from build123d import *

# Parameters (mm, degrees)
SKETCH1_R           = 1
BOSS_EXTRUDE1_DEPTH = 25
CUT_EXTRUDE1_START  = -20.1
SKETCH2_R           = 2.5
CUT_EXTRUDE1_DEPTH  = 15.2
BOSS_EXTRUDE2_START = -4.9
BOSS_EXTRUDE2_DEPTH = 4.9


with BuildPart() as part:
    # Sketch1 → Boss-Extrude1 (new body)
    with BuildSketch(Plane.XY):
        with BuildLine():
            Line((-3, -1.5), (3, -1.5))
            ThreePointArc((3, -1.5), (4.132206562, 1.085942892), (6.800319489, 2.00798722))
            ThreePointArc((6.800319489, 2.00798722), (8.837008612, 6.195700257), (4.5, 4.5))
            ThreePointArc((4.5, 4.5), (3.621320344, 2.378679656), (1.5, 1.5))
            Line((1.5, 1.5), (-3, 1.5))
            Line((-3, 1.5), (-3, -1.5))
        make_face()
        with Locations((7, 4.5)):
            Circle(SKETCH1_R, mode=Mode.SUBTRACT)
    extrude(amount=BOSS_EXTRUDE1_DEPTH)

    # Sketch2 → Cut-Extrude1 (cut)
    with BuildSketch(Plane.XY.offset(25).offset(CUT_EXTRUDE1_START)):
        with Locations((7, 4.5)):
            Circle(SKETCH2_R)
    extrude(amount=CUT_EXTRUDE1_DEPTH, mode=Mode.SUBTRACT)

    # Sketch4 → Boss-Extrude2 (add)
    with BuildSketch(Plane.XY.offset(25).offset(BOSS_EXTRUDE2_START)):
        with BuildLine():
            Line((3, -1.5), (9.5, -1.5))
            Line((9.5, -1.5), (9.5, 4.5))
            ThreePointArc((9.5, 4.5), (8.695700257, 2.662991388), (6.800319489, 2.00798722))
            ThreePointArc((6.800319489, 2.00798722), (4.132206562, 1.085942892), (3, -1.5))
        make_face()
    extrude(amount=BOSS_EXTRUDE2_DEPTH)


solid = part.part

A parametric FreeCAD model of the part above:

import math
import FreeCAD as App
import Part
import Sketcher
from FreeCAD import Vector
Q = App.Units.Quantity

doc = App.newDocument("Part")
body = doc.addObject("PartDesign::Body", "Body")

sketch1 = body.newObject("Sketcher::SketchObject", "Sketch")
sketch1.AttachmentSupport = (doc.getObject("XY_Plane"), [""])
sketch1.MapMode = "FlatFace"
sketch1.addGeometry([
    Part.LineSegment(Vector(-3, -1.5, 0), Vector(3, -1.5, 0)),
    Part.ArcOfCircle(Part.Circle(Vector(6.5, -1.5, 0), Vector(0, 0, 1), 3.5), math.radians(85), math.radians(180)),
    Part.ArcOfCircle(Part.Circle(Vector(7, 4.5, 0), Vector(0, 0, 1), 2.5), math.radians(-95), math.radians(180)),
    Part.ArcOfCircle(Part.Circle(Vector(1.5, 4.5, 0), Vector(0, 0, 1), 3), math.radians(-90), math.radians(0)),
    Part.LineSegment(Vector(1.5, 1.5, 0), Vector(-3, 1.5, 0)),
    Part.LineSegment(Vector(-3, 1.5, 0), Vector(-3, -1.5, 0)),
    Part.Circle(Vector(7, 4.5, 0), Vector(0, 0, 1), 1),
], False)
sketch1.addConstraint([
    Sketcher.Constraint("Coincident", 0, 2, 1, 2),
    Sketcher.Constraint("Tangent", 1, 1, 2, 1),
    Sketcher.Constraint("Tangent", 2, 2, 3, 2),
    Sketcher.Constraint("Tangent", 3, 1, 4, 1),
    Sketcher.Constraint("Coincident", 4, 2, 5, 1),
    Sketcher.Constraint("Coincident", 5, 2, 0, 1),
    Sketcher.Constraint("Horizontal", 0),
    Sketcher.Constraint("Horizontal", 4),
    Sketcher.Constraint("Vertical", 5),
    Sketcher.Constraint("Coincident", 6, 3, 2, 3),
    Sketcher.Constraint("Symmetric", 0, 2, 4, 2, -1, 1),
    Sketcher.Constraint("Horizontal", 2, 3, 3, 3),
    Sketcher.Constraint("Horizontal", 1, 3, 0, 2),
    Sketcher.Constraint("Diameter", 6, Q("2 mm")),
    Sketcher.Constraint("Radius", 3, Q("3 mm")),
    Sketcher.Constraint("Radius", 2, Q("2.5 mm")),
    Sketcher.Constraint("DistanceX", 0, 1, 0, 2, Q("6 mm")),
    Sketcher.Constraint("DistanceY", 5, 2, 5, 1, Q("3 mm")),
    Sketcher.Constraint("DistanceX", 4, 2, 4, 1, Q("4.5 mm")),
])
pad1 = body.newObject("PartDesign::Pad", "Pad")
pad1.Profile = sketch1
pad1.Length = 25

sketch2 = body.newObject("Sketcher::SketchObject", "Sketch001")
sketch2.AttachmentSupport = (doc.getObject("XY_Plane"), [""])
sketch2.MapMode = "FlatFace"
sketch2.AttachmentOffset = App.Placement(Vector(0, 0, 4.9), App.Rotation())
sketch2.addGeometry(Part.Circle(Vector(7, 4.5, 0), Vector(0, 0, 1), 2.5), False)
sketch2.addConstraint([
    Sketcher.Constraint("Diameter", 0, Q("5 mm")),
    Sketcher.Constraint("DistanceX", -1, 1, 0, 3, Q("7 mm")),
    Sketcher.Constraint("DistanceY", -1, 1, 0, 3, Q("4.5 mm")),
])
pocket1 = body.newObject("PartDesign::Pocket", "Pocket")
pocket1.Profile = sketch2
pocket1.Length = 15.2
pocket1.Reversed = True

sketch3 = body.newObject("Sketcher::SketchObject", "Sketch002")
sketch3.AttachmentSupport = (doc.getObject("XY_Plane"), [""])
sketch3.MapMode = "FlatFace"
sketch3.AttachmentOffset = App.Placement(Vector(0, 0, 20.1), App.Rotation())
sketch3.addGeometry([
    Part.LineSegment(Vector(3, -1.5, 0), Vector(9.5, -1.5, 0)),
    Part.LineSegment(Vector(9.5, -1.5, 0), Vector(9.5, 4.5, 0)),
    Part.ArcOfCircle(Part.Circle(Vector(7, 4.5, 0), Vector(0, 0, 1), 2.5), math.radians(-95), math.radians(0)),
    Part.ArcOfCircle(Part.Circle(Vector(6.5, -1.5, 0), Vector(0, 0, 1), 3.5), math.radians(85), math.radians(180)),
], False)
sketch3.addConstraint([
    Sketcher.Constraint("Coincident", 0, 2, 1, 1),
    Sketcher.Constraint("Tangent", 1, 2, 2, 2),
    Sketcher.Constraint("Tangent", 2, 1, 3, 1),
    Sketcher.Constraint("Coincident", 3, 2, 0, 1),
    Sketcher.Constraint("Horizontal", 0),
    Sketcher.Constraint("Vertical", 1),
    Sketcher.Constraint("Horizontal", 3, 3, 0, 2),
    Sketcher.Constraint("Radius", 2, Q("2.5 mm")),
    Sketcher.Constraint("DistanceY", 1, 1, 1, 2, Q("6 mm")),
    Sketcher.Constraint("DistanceX", 0, 1, 0, 2, Q("6.5 mm")),
    Sketcher.Constraint("DistanceX", -1, 1, 2, 3, Q("7 mm")),
    Sketcher.Constraint("DistanceY", -1, 1, 2, 3, Q("4.5 mm")),
])
pad2 = body.newObject("PartDesign::Pad", "Pad001")
pad2.Profile = sketch3
pad2.Length = 4.9

doc.recompute()
